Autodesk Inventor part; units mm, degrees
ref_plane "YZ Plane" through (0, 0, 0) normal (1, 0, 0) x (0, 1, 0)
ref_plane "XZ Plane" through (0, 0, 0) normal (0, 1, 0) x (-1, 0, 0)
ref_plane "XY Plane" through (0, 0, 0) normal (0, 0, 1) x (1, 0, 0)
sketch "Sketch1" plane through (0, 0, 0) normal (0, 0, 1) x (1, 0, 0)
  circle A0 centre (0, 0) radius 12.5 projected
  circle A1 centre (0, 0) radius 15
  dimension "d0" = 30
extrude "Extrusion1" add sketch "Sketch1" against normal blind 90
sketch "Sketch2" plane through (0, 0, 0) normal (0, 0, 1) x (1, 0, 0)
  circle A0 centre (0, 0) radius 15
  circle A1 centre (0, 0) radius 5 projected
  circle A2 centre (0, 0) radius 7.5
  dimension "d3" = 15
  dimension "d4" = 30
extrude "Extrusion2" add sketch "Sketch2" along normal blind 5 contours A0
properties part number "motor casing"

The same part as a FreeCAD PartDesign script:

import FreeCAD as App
import Part
import Sketcher
from FreeCAD import Vector
Q = App.Units.Quantity

doc = App.newDocument("Part")
body = doc.addObject("PartDesign::Body", "Body")

sketch1 = body.newObject("Sketcher::SketchObject", "Sketch")
sketch1.AttachmentSupport = (doc.getObject("XY_Plane"), [""])
sketch1.MapMode = "FlatFace"
sketch1.addGeometry([
    Part.Circle(Vector(0, 0, 0), Vector(0, 0, 1), 15),
    Part.Circle(Vector(0, 0, 0), Vector(0, 0, 1), 12),
], False)
sketch1.addConstraint([
    Sketcher.Constraint("Coincident", 0, 3, -1, 1),
    Sketcher.Constraint("Coincident", 1, 3, -1, 1),
    Sketcher.Constraint("Diameter", 0, Q("30 mm")),
    Sketcher.Constraint("Diameter", 1, Q("25 mm")),
])
pad1 = body.newObject("PartDesign::Pad", "Pad")
pad1.Profile = sketch1
pad1.Length = 90
pad1.Reversed = True

sketch2 = body.newObject("Sketcher::SketchObject", "Sketch001")
sketch2.AttachmentSupport = (doc.getObject("XY_Plane"), [""])
sketch2.MapMode = "FlatFace"
sketch2.addGeometry([
    Part.Circle(Vector(0, 0, 0), Vector(0, 0, 1), 15),
    Part.Circle(Vector(0, 0, 0), Vector(0, 0, 1), 8),
], False)
sketch2.addConstraint([
    Sketcher.Constraint("Coincident", 0, 3, -1, 1),
    Sketcher.Constraint("Coincident", 1, 3, -1, 1),
    Sketcher.Constraint("Diameter", 0, Q("30 mm")),
    Sketcher.Constraint("Diameter", 1, Q("15 mm")),
])
pad2 = body.newObject("PartDesign::Pad", "Pad001")
pad2.Profile = sketch2
pad2.Length = 5

doc.recompute()
